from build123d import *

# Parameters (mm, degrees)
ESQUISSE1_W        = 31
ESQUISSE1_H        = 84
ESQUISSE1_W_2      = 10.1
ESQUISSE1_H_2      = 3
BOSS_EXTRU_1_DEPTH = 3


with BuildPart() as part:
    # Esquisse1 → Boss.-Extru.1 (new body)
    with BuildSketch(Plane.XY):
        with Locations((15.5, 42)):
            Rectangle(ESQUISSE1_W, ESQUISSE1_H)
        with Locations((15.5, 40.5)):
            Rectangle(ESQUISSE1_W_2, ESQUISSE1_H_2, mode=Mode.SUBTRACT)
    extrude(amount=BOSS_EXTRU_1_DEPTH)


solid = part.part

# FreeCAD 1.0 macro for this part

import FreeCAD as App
import Part
import Sketcher

V = App.Vector


def add_polygon(sketch, points):
    """Adds a closed chain of lines whose ends are joined by coincident constraints."""
    first, n = sketch.GeometryCount, len(points)
    for a, b in zip(points, points[1:] + points[:1]):
        sketch.addGeometry(Part.LineSegment(App.Vector(*a, 0), App.Vector(*b, 0)), False)
    for i in range(n):
        sketch.addConstraint(Sketcher.Constraint("Coincident", first + i, 2, first + (i + 1) % n, 1))

doc = App.newDocument("Part")
body = doc.addObject("PartDesign::Body", "Body")

# Sketch on XY plane
sketch1 = body.newObject("Sketcher::SketchObject", "Sketch")
sketch1.AttachmentSupport = (doc.getObject("XY_Plane"), [""])
sketch1.MapMode = "FlatFace"
add_polygon(sketch1, [(0, 84), (0, 0), (31, 0), (31, 84)])  # lines 0-3
add_polygon(sketch1, [(20.6, 39), (10.4, 39), (10.4, 42), (20.6, 42)])  # lines 4-7
sketch1.addConstraint([
    Sketcher.Constraint("Vertical", 0),
    Sketcher.Constraint("Horizontal", 1),
    Sketcher.Constraint("Vertical", 2),
    Sketcher.Constraint("Horizontal", 3),
    Sketcher.Constraint("Horizontal", 4),
    Sketcher.Constraint("Vertical", 5),
    Sketcher.Constraint("Horizontal", 6),
    Sketcher.Constraint("Vertical", 7),
    Sketcher.Constraint("Coincident", 0, 2, -1, 1),
    Sketcher.Constraint("DistanceX", 1, 1, 1, 2, 31.0),
    Sketcher.Constraint("DistanceY", 0, 2, 0, 1, 84.0),
    Sketcher.Constraint("DistanceY", 5, 1, 5, 2, 3.0),
    Sketcher.Constraint("DistanceX", 4, 2, 4, 1, 10.1),
    Sketcher.Constraint("DistanceY", -1, 1, 4, 2, 39.0),
    Sketcher.Constraint("DistanceX", -1, 1, 4, 2, 10.45),
])
pad1 = body.newObject("PartDesign::Pad", "Pad")
pad1.Profile = sketch1
pad1.Length = 3

doc.recompute()
